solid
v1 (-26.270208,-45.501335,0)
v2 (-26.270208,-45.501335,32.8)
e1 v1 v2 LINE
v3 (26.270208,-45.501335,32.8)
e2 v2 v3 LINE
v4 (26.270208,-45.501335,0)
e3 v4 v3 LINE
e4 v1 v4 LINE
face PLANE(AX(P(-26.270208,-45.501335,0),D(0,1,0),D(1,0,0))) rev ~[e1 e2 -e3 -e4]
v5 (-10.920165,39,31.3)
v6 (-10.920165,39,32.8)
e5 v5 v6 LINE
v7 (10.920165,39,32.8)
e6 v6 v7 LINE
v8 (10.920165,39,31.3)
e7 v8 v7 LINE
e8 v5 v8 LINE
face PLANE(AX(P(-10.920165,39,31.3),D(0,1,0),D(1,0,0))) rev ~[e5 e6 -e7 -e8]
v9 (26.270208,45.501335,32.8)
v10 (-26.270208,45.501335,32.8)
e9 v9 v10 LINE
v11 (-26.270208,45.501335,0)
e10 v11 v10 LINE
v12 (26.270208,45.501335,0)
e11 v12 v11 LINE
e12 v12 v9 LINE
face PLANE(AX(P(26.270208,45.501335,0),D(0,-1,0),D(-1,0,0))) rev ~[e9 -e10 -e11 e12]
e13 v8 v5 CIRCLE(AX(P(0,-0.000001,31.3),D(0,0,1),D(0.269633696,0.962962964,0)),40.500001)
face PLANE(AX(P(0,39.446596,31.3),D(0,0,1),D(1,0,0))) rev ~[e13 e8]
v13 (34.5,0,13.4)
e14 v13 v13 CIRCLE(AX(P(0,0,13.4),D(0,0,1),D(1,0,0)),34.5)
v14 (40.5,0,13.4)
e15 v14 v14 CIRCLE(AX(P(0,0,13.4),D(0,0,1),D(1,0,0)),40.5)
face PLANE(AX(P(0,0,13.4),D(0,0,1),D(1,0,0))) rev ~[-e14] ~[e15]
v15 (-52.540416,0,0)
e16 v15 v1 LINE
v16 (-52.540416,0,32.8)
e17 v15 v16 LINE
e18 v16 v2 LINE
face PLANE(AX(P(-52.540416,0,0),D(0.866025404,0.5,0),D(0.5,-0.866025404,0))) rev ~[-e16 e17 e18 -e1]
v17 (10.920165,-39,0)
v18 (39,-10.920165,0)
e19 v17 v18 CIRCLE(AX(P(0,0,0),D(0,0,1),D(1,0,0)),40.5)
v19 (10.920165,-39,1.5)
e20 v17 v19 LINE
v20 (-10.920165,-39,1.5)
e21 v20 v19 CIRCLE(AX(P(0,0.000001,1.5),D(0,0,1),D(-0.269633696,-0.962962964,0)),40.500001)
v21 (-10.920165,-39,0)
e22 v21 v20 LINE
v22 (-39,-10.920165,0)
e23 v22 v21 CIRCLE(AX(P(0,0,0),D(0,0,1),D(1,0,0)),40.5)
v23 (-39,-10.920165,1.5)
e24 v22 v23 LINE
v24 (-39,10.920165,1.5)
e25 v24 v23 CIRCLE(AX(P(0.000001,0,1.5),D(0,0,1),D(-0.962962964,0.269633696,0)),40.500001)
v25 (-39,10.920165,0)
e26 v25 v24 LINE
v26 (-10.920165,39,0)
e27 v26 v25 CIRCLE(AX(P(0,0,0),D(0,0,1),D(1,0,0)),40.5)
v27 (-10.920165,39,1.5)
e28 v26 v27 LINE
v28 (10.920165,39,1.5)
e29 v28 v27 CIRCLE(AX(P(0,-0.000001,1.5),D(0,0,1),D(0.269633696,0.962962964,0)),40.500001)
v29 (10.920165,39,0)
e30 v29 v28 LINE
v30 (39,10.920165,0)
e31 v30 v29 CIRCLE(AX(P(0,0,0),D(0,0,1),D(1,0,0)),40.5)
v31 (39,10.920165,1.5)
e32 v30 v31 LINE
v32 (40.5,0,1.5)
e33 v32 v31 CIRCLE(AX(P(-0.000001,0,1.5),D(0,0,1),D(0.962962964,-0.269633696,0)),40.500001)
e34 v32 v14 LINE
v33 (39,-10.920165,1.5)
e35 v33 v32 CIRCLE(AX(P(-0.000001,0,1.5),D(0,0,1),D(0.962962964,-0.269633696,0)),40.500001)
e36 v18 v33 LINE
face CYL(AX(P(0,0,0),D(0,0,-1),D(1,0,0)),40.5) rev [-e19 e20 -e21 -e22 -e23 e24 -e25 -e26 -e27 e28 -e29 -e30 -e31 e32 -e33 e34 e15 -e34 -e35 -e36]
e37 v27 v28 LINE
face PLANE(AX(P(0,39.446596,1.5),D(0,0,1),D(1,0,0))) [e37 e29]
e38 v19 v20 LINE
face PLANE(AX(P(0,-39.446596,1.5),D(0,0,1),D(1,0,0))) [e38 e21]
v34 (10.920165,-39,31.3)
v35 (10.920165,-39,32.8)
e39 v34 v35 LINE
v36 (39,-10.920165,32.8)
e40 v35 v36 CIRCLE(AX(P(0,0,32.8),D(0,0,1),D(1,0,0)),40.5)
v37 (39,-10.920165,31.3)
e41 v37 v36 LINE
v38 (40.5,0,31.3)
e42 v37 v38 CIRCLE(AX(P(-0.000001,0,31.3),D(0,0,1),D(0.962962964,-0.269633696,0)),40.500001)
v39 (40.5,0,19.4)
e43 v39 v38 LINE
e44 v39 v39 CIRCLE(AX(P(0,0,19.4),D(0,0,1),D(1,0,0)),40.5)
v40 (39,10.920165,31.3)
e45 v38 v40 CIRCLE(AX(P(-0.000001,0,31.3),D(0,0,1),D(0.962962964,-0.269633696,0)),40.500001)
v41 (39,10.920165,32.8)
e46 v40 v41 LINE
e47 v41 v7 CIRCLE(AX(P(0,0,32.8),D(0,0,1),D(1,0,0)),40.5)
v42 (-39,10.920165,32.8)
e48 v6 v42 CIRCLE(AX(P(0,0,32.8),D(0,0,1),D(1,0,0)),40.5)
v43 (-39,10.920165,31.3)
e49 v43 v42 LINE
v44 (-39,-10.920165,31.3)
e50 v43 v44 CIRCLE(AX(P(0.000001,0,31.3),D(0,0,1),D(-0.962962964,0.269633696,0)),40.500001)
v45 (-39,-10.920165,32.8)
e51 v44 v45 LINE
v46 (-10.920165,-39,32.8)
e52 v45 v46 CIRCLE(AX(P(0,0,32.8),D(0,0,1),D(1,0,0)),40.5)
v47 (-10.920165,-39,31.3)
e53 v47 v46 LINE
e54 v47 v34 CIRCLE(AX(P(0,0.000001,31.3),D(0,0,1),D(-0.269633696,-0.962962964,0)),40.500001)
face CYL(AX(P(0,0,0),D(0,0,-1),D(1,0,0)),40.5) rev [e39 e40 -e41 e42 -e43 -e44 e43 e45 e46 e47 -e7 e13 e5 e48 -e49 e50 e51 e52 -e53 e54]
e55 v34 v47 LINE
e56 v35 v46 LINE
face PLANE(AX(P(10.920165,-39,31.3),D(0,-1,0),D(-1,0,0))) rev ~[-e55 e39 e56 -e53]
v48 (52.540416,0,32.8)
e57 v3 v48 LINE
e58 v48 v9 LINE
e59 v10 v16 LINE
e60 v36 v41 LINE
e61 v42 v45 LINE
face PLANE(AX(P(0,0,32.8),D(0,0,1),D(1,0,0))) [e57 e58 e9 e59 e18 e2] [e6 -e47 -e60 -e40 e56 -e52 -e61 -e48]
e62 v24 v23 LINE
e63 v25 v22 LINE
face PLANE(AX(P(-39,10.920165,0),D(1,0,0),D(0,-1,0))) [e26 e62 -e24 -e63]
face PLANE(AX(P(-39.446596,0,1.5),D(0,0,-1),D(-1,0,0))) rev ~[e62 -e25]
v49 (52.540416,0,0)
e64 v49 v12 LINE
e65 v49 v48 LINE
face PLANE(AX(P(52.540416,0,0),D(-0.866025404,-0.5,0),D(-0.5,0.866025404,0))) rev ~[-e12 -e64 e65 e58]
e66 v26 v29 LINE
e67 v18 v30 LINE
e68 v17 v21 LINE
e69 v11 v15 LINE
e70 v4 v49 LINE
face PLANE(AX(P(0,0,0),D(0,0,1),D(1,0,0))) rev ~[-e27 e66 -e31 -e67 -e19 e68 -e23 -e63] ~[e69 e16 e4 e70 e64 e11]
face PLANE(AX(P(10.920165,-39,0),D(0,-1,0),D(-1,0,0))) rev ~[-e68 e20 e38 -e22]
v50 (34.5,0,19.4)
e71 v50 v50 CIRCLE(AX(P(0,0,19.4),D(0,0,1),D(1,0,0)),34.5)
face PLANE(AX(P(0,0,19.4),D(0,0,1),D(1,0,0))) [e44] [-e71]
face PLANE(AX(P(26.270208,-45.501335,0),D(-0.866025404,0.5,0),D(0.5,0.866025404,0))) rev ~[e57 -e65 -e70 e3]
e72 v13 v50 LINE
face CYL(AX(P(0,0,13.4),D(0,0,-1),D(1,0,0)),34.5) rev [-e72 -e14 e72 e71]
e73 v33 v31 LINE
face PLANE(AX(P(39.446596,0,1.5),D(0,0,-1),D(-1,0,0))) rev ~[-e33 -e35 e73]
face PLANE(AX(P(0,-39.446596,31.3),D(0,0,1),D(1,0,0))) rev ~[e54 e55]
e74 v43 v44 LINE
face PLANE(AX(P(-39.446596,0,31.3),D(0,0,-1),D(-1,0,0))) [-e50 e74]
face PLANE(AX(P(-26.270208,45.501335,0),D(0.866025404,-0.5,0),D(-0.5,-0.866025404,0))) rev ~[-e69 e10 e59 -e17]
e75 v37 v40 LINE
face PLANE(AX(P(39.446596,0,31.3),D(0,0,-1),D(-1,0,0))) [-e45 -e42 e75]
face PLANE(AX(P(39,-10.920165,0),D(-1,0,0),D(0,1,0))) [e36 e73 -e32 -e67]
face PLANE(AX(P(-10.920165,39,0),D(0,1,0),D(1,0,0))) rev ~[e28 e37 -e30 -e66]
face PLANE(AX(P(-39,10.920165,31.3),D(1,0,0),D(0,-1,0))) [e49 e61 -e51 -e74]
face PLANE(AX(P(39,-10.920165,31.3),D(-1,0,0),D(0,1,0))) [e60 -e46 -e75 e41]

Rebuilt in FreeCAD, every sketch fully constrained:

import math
import FreeCAD as App
import Part
import Sketcher
from FreeCAD import Vector
Q = App.Units.Quantity

doc = App.newDocument("Part")
params = doc.addObject("Spreadsheet::Sheet", "Params")
for row, (alias, value) in enumerate([
    ("sketch1_diameter", "81 mm"),
    ("pad1_length", "32.8 mm"),
    ("pad2_length", "32.8 mm"),
    ("sketch3_diameter", "69 mm"),
    ("pad3_length", "6 mm"),
    ("sketch4_diameter", "81 mm"),
    ("pad4_length", "6 mm"),
    ("sketch5_radius", "40.500001 mm"),
    ("pad5_length", "1.5 mm"),
    ("sketch6_radius", "40.500001 mm"),
    ("pad6_length", "1.5 mm"),
    ("sketch7_radius", "40.500001 mm"),
    ("pad7_length", "1.5 mm"),
    ("sketch8_radius", "40.500001 mm"),
    ("pad8_length", "1.5 mm"),
    ("sketch9_radius", "40.500001 mm"),
    ("pad9_length", "1.5 mm"),
    ("sketch10_radius", "40.500001 mm"),
    ("pad10_length", "1.5 mm"),
    ("sketch11_radius", "40.500001 mm"),
    ("pad11_length", "1.5 mm"),
    ("sketch12_radius", "40.500001 mm"),
    ("pad12_length", "1.5 mm"),
], start=1):
    params.set(f"A{row}", alias)
    params.set(f"B{row}", "=" + value)
    params.setAlias(f"B{row}", alias)

body = doc.addObject("PartDesign::Body", "Body")

# Sketch on XY plane
sketch1 = doc.addObject("Sketcher::SketchObject", "Sketch")
body.addObject(sketch1)
sketch1.AttachmentSupport = (doc.XY_Plane, [""])
sketch1.MapMode = "FlatFace"
sketch1.addGeometry(Part.Circle(Vector(0, 0, 0), Vector(0, 0, 1), 40), False)
sketch1.addConstraint(Sketcher.Constraint("Coincident", 0, 3, -1, 1))
sketch1.addConstraint(Sketcher.Constraint("Diameter", 0, 81.0))
sketch1.setExpression("Constraints[1]", "Params.sketch1_diameter")
pad1 = doc.addObject("PartDesign::Pad", "Pad")
body.addObject(pad1)
pad1.Profile = sketch1
pad1.setExpression("Length", "Params.pad1_length")
body2 = doc.addObject("PartDesign::Body", "Body001")

# Sketch on XY plane
sketch2 = doc.addObject("Sketcher::SketchObject", "Sketch001")
body2.addObject(sketch2)
sketch2.AttachmentSupport = (doc.getObject("XY_Plane001"), [""])
sketch2.MapMode = "FlatFace"
sketch2.addGeometry(Part.LineSegment(Vector(53, 0, 0), Vector(26, 46, 0)), False)
sketch2.addGeometry(Part.LineSegment(Vector(26, 46, 0), Vector(-26, 46, 0)), False)
sketch2.addGeometry(Part.LineSegment(Vector(-26, 46, 0), Vector(-53, 0, 0)), False)
sketch2.addGeometry(Part.LineSegment(Vector(-53, 0, 0), Vector(-26, -46, 0)), False)
sketch2.addGeometry(Part.LineSegment(Vector(-26, -46, 0), Vector(26, -46, 0)), False)
sketch2.addGeometry(Part.LineSegment(Vector(26, -46, 0), Vector(53, 0, 0)), False)
sketch2.addConstraint(Sketcher.Constraint("Coincident", 0, 2, 1, 1))
sketch2.addConstraint(Sketcher.Constraint("Coincident", 1, 2, 2, 1))
sketch2.addConstraint(Sketcher.Constraint("Coincident", 2, 2, 3, 1))
sketch2.addConstraint(Sketcher.Constraint("Coincident", 3, 2, 4, 1))
sketch2.addConstraint(Sketcher.Constraint("Coincident", 4, 2, 5, 1))
sketch2.addConstraint(Sketcher.Constraint("Coincident", 5, 2, 0, 1))
sketch2.addConstraint(Sketcher.Constraint("Horizontal", 1))
sketch2.addConstraint(Sketcher.Constraint("Horizontal", 4))
sketch2.addConstraint(Sketcher.Constraint("Symmetric", 0, 2, 3, 2, -1, 1))
sketch2.addConstraint(Sketcher.Constraint("Symmetric", 2, 2, 5, 2, -1, 1))
sketch2.addConstraint(Sketcher.Constraint("PointOnObject", 2, 2, -1))
sketch2.addConstraint(Sketcher.Constraint("Parallel", 2, 5))
sketch2.addConstraint(Sketcher.Constraint("Vertical", 1, 2, 3, 2))
sketch2.addConstraint(Sketcher.Constraint("Angle", 0, Q("120 deg")))
sketch2.addConstraint(Sketcher.Constraint("DistanceX", 1, 2, 1, 1, 52.540416))
sketch2.addConstraint(Sketcher.Constraint("DistanceX", 2, 2, 1, 2, 26.270208))
pad2 = doc.addObject("PartDesign::Pad", "Pad001")
body2.addObject(pad2)
pad2.Profile = sketch2
pad2.setExpression("Length", "Params.pad2_length")
doc.recompute()

boolean = doc.addObject("PartDesign::Boolean", "Boolean")
body2.addObject(boolean)
boolean.Type = "Cut"
boolean.addObjects([body])
body3 = doc.addObject("PartDesign::Body", "Body002")

# Sketch on XY plane
sketch3 = doc.addObject("Sketcher::SketchObject", "Sketch002")
body3.addObject(sketch3)
sketch3.AttachmentSupport = (doc.getObject("XY_Plane002"), [""])
sketch3.MapMode = "FlatFace"
sketch3.addGeometry(Part.Circle(Vector(0, 0, 0), Vector(0, 0, 1), 34), False)
sketch3.addConstraint(Sketcher.Constraint("Coincident", 0, 3, -1, 1))
sketch3.addConstraint(Sketcher.Constraint("Diameter", 0, 69.0))
sketch3.setExpression("Constraints[1]", "Params.sketch3_diameter")
pad3 = doc.addObject("PartDesign::Pad", "Pad002")
body3.addObject(pad3)
pad3.Profile = sketch3
pad3.setExpression("Length", "Params.pad3_length")
body4 = doc.addObject("PartDesign::Body", "Body003")

# Sketch on XY plane
sketch4 = doc.addObject("Sketcher::SketchObject", "Sketch003")
body4.addObject(sketch4)
sketch4.AttachmentSupport = (doc.getObject("XY_Plane003"), [""])
sketch4.MapMode = "FlatFace"
sketch4.addGeometry(Part.Circle(Vector(0, 0, 0), Vector(0, 0, 1), 40), False)
sketch4.addConstraint(Sketcher.Constraint("Coincident", 0, 3, -1, 1))
sketch4.addConstraint(Sketcher.Constraint("Diameter", 0, 81.0))
sketch4.setExpression("Constraints[1]", "Params.sketch4_diameter")
pad4 = doc.addObject("PartDesign::Pad", "Pad003")
body4.addObject(pad4)
pad4.Profile = sketch4
pad4.setExpression("Length", "Params.pad4_length")
doc.recompute()

boolean2 = doc.addObject("PartDesign::Boolean", "Boolean001")
body4.addObject(boolean2)
boolean2.Type = "Cut"
boolean2.addObjects([body3])
body5 = doc.addObject("PartDesign::Body", "Body004")
doc.recompute()

body4.Placement = App.Placement(Vector(0, 0, 13.4), App.Rotation(Vector(0, 0, 1), 0))
boolean3 = doc.addObject("PartDesign::Boolean", "Boolean002")
body5.addObject(boolean3)
boolean3.Type = "Fuse"
boolean3.addObjects([body4])
doc.recompute()

boolean4 = doc.addObject("PartDesign::Boolean", "Boolean003")
body5.addObject(boolean4)
boolean4.Type = "Fuse"
boolean4.addObjects([body2])
body6 = doc.addObject("PartDesign::Body", "Body005")

# Sketch on XY plane
sketch5 = doc.addObject("Sketcher::SketchObject", "Sketch004")
body6.addObject(sketch5)
sketch5.AttachmentSupport = (doc.getObject("XY_Plane005"), [""])
sketch5.MapMode = "FlatFace"
sketch5.addGeometry(Part.LineSegment(Vector(11, -39, 0), Vector(-11, -39, 0)), False)
sketch5.addGeometry(Part.ArcOfCircle(Part.Circle(Vector(0, 0, 0), Vector(0, 0, 1), 41), math.radians(-106), math.radians(-74)), False)
sketch5.addConstraint(Sketcher.Constraint("Coincident", 0, 1, 1, 2))
sketch5.addConstraint(Sketcher.Constraint("Coincident", 1, 1, 0, 2))
sketch5.addConstraint(Sketcher.Constraint("Horizontal", 0))
sketch5.addConstraint(Sketcher.Constraint("Coincident", 1, 3, -1, 1))
sketch5.addConstraint(Sketcher.Constraint("Radius", 1, 40.500001))
sketch5.addConstraint(Sketcher.Constraint("DistanceY", 0, 1, -1, 1, 39.0))
sketch5.setExpression("Constraints[4]", "Params.sketch5_radius")
pad5 = doc.addObject("PartDesign::Pad", "Pad004")
body6.addObject(pad5)
pad5.Profile = sketch5
pad5.setExpression("Length", "Params.pad5_length")
body7 = doc.addObject("PartDesign::Body", "Body006")

# Sketch on XY plane
sketch6 = doc.addObject("Sketcher::SketchObject", "Sketch005")
body7.addObject(sketch6)
sketch6.AttachmentSupport = (doc.getObject("XY_Plane006"), [""])
sketch6.MapMode = "FlatFace"
sketch6.addGeometry(Part.LineSegment(Vector(-39, -11, 0), Vector(-39, 11, 0)), False)
sketch6.addGeometry(Part.ArcOfCircle(Part.Circle(Vector(0, 0, 0), Vector(0, 0, 1), 41), math.radians(164), math.radians(196)), False)
sketch6.addConstraint(Sketcher.Constraint("Coincident", 0, 1, 1, 2))
sketch6.addConstraint(Sketcher.Constraint("Coincident", 1, 1, 0, 2))
sketch6.addConstraint(Sketcher.Constraint("Vertical", 0))
sketch6.addConstraint(Sketcher.Constraint("Coincident", 1, 3, -1, 1))
sketch6.addConstraint(Sketcher.Constraint("Radius", 1, 40.500001))
sketch6.addConstraint(Sketcher.Constraint("DistanceX", 0, 1, -1, 1, 39.0))
sketch6.setExpression("Constraints[4]", "Params.sketch6_radius")
pad6 = doc.addObject("PartDesign::Pad", "Pad005")
body7.addObject(pad6)
pad6.Profile = sketch6
pad6.setExpression("Length", "Params.pad6_length")
body8 = doc.addObject("PartDesign::Body", "Body007")

# Sketch on XY plane
sketch7 = doc.addObject("Sketcher::SketchObject", "Sketch006")
body8.addObject(sketch7)
sketch7.AttachmentSupport = (doc.getObject("XY_Plane007"), [""])
sketch7.MapMode = "FlatFace"
sketch7.addGeometry(Part.LineSegment(Vector(39, 11, 0), Vector(39, -11, 0)), False)
sketch7.addGeometry(Part.ArcOfCircle(Part.Circle(Vector(0, 0, 0), Vector(0, 0, 1), 41), math.radians(-16), math.radians(16)), False)
sketch7.addConstraint(Sketcher.Constraint("Coincident", 0, 1, 1, 2))
sketch7.addConstraint(Sketcher.Constraint("Coincident", 1, 1, 0, 2))
sketch7.addConstraint(Sketcher.Constraint("Vertical", 0))
sketch7.addConstraint(Sketcher.Constraint("Coincident", 1, 3, -1, 1))
sketch7.addConstraint(Sketcher.Constraint("Radius", 1, 40.500001))
sketch7.addConstraint(Sketcher.Constraint("DistanceX", -1, 1, 0, 1, 39.0))
sketch7.setExpression("Constraints[4]", "Params.sketch7_radius")
pad7 = doc.addObject("PartDesign::Pad", "Pad006")
body8.addObject(pad7)
pad7.Profile = sketch7
pad7.setExpression("Length", "Params.pad7_length")
body9 = doc.addObject("PartDesign::Body", "Body008")
body9.AllowCompound = True

# Sketch on XY plane
sketch8 = doc.addObject("Sketcher::SketchObject", "Sketch007")
body9.addObject(sketch8)
sketch8.AttachmentSupport = (doc.getObject("XY_Plane008"), [""])
sketch8.MapMode = "FlatFace"
sketch8.addGeometry(Part.LineSegment(Vector(-11, 39, 0), Vector(11, 39, 0)), False)
sketch8.addGeometry(Part.ArcOfCircle(Part.Circle(Vector(0, 0, 0), Vector(0, 0, 1), 41), math.radians(74), math.radians(106)), False)
sketch8.addConstraint(Sketcher.Constraint("Coincident", 0, 1, 1, 2))
sketch8.addConstraint(Sketcher.Constraint("Coincident", 1, 1, 0, 2))
sketch8.addConstraint(Sketcher.Constraint("Horizontal", 0))
sketch8.addConstraint(Sketcher.Constraint("Coincident", 1, 3, -1, 1))
sketch8.addConstraint(Sketcher.Constraint("Radius", 1, 40.500001))
sketch8.addConstraint(Sketcher.Constraint("DistanceY", -1, 1, 0, 1, 39.0))
sketch8.setExpression("Constraints[4]", "Params.sketch8_radius")
pad8 = doc.addObject("PartDesign::Pad", "Pad007")
body9.addObject(pad8)
pad8.Profile = sketch8
pad8.setExpression("Length", "Params.pad8_length")
doc.recompute()

boolean5 = doc.addObject("PartDesign::Boolean", "Boolean004")
body9.addObject(boolean5)
boolean5.Type = "Fuse"
boolean5.addObjects([body6])
doc.recompute()

boolean6 = doc.addObject("PartDesign::Boolean", "Boolean005")
body9.addObject(boolean6)
boolean6.Type = "Fuse"
boolean6.addObjects([body7])
doc.recompute()

boolean7 = doc.addObject("PartDesign::Boolean", "Boolean006")
body9.addObject(boolean7)
boolean7.Type = "Fuse"
boolean7.addObjects([body8])
body10 = doc.addObject("PartDesign::Body", "Body009")
body10.AllowCompound = True
doc.recompute()

body9.Placement = App.Placement(Vector(0, 0, 31.3), App.Rotation(Vector(0, 0, 1), 0))
boolean8 = doc.addObject("PartDesign::Boolean", "Boolean007")
body10.addObject(boolean8)
boolean8.Type = "Fuse"
boolean8.addObjects([body9])
doc.recompute()

boolean9 = doc.addObject("PartDesign::Boolean", "Boolean008")
body10.addObject(boolean9)
boolean9.Type = "Fuse"
boolean9.addObjects([body5])
body11 = doc.addObject("PartDesign::Body", "Body010")

# Sketch on XY plane
sketch9 = doc.addObject("Sketcher::SketchObject", "Sketch008")
body11.addObject(sketch9)
sketch9.AttachmentSupport = (doc.getObject("XY_Plane010"), [""])
sketch9.MapMode = "FlatFace"
sketch9.addGeometry(Part.LineSegment(Vector(-11, 39, 0), Vector(11, 39, 0)), False)
sketch9.addGeometry(Part.ArcOfCircle(Part.Circle(Vector(0, 0, 0), Vector(0, 0, 1), 41), math.radians(74), math.radians(106)), False)
sketch9.addConstraint(Sketcher.Constraint("Coincident", 0, 1, 1, 2))
sketch9.addConstraint(Sketcher.Constraint("Coincident", 1, 1, 0, 2))
sketch9.addConstraint(Sketcher.Constraint("Horizontal", 0))
sketch9.addConstraint(Sketcher.Constraint("Coincident", 1, 3, -1, 1))
sketch9.addConstraint(Sketcher.Constraint("Radius", 1, 40.500001))
sketch9.addConstraint(Sketcher.Constraint("DistanceY", -1, 1, 0, 1, 39.0))
sketch9.setExpression("Constraints[4]", "Params.sketch9_radius")
pad9 = doc.addObject("PartDesign::Pad", "Pad008")
body11.addObject(pad9)
pad9.Profile = sketch9
pad9.setExpression("Length", "Params.pad9_length")
body12 = doc.addObject("PartDesign::Body", "Body011")

# Sketch on XY plane
sketch10 = doc.addObject("Sketcher::SketchObject", "Sketch009")
body12.addObject(sketch10)
sketch10.AttachmentSupport = (doc.getObject("XY_Plane011"), [""])
sketch10.MapMode = "FlatFace"
sketch10.addGeometry(Part.LineSegment(Vector(11, -39, 0), Vector(-11, -39, 0)), False)
sketch10.addGeometry(Part.ArcOfCircle(Part.Circle(Vector(0, 0, 0), Vector(0, 0, 1), 41), math.radians(-106), math.radians(-74)), False)
sketch10.addConstraint(Sketcher.Constraint("Coincident", 0, 1, 1, 2))
sketch10.addConstraint(Sketcher.Constraint("Coincident", 1, 1, 0, 2))
sketch10.addConstraint(Sketcher.Constraint("Horizontal", 0))
sketch10.addConstraint(Sketcher.Constraint("Coincident", 1, 3, -1, 1))
sketch10.addConstraint(Sketcher.Constraint("Radius", 1, 40.500001))
sketch10.addConstraint(Sketcher.Constraint("DistanceY", 0, 1, -1, 1, 39.0))
sketch10.setExpression("Constraints[4]", "Params.sketch10_radius")
pad10 = doc.addObject("PartDesign::Pad", "Pad009")
body12.addObject(pad10)
pad10.Profile = sketch10
pad10.setExpression("Length", "Params.pad10_length")
body13 = doc.addObject("PartDesign::Body", "Body012")

# Sketch on XY plane
sketch11 = doc.addObject("Sketcher::SketchObject", "Sketch010")
body13.addObject(sketch11)
sketch11.AttachmentSupport = (doc.getObject("XY_Plane012"), [""])
sketch11.MapMode = "FlatFace"
sketch11.addGeometry(Part.LineSegment(Vector(-39, -11, 0), Vector(-39, 11, 0)), False)
sketch11.addGeometry(Part.ArcOfCircle(Part.Circle(Vector(0, 0, 0), Vector(0, 0, 1), 41), math.radians(164), math.radians(196)), False)
sketch11.addConstraint(Sketcher.Constraint("Coincident", 0, 1, 1, 2))
sketch11.addConstraint(Sketcher.Constraint("Coincident", 1, 1, 0, 2))
sketch11.addConstraint(Sketcher.Constraint("Vertical", 0))
sketch11.addConstraint(Sketcher.Constraint("Coincident", 1, 3, -1, 1))
sketch11.addConstraint(Sketcher.Constraint("Radius", 1, 40.500001))
sketch11.addConstraint(Sketcher.Constraint("DistanceX", 0, 1, -1, 1, 39.0))
sketch11.setExpression("Constraints[4]", "Params.sketch11_radius")
pad11 = doc.addObject("PartDesign::Pad", "Pad010")
body13.addObject(pad11)
pad11.Profile = sketch11
pad11.setExpression("Length", "Params.pad11_length")
body14 = doc.addObject("PartDesign::Body", "Body013")
body14.AllowCompound = True

# Sketch on XY plane
sketch12 = doc.addObject("Sketcher::SketchObject", "Sketch011")
body14.addObject(sketch12)
sketch12.AttachmentSupport = (doc.getObject("XY_Plane013"), [""])
sketch12.MapMode = "FlatFace"
sketch12.addGeometry(Part.LineSegment(Vector(39, 11, 0), Vector(39, -11, 0)), False)
sketch12.addGeometry(Part.ArcOfCircle(Part.Circle(Vector(0, 0, 0), Vector(0, 0, 1), 41), math.radians(-16), math.radians(16)), False)
sketch12.addConstraint(Sketcher.Constraint("Coincident", 0, 1, 1, 2))
sketch12.addConstraint(Sketcher.Constraint("Coincident", 1, 1, 0, 2))
sketch12.addConstraint(Sketcher.Constraint("Vertical", 0))
sketch12.addConstraint(Sketcher.Constraint("Coincident", 1, 3, -1, 1))
sketch12.addConstraint(Sketcher.Constraint("Radius", 1, 40.500001))
sketch12.addConstraint(Sketcher.Constraint("DistanceX", -1, 1, 0, 1, 39.0))
sketch12.setExpression("Constraints[4]", "Params.sketch12_radius")
pad12 = doc.addObject("PartDesign::Pad", "Pad011")
body14.addObject(pad12)
pad12.Profile = sketch12
pad12.setExpression("Length", "Params.pad12_length")
doc.recompute()

boolean10 = doc.addObject("PartDesign::Boolean", "Boolean009")
body14.addObject(boolean10)
boolean10.Type = "Fuse"
boolean10.addObjects([body11])
doc.recompute()

boolean11 = doc.addObject("PartDesign::Boolean", "Boolean010")
body14.addObject(boolean11)
boolean11.Type = "Fuse"
boolean11.addObjects([body12])
doc.recompute()

boolean12 = doc.addObject("PartDesign::Boolean", "Boolean011")
body14.addObject(boolean12)
boolean12.Type = "Fuse"
boolean12.addObjects([body13])
doc.recompute()

boolean13 = doc.addObject("PartDesign::Boolean", "Boolean012")
body14.addObject(boolean13)
boolean13.Type = "Fuse"
boolean13.addObjects([body10])

doc.recompute()
